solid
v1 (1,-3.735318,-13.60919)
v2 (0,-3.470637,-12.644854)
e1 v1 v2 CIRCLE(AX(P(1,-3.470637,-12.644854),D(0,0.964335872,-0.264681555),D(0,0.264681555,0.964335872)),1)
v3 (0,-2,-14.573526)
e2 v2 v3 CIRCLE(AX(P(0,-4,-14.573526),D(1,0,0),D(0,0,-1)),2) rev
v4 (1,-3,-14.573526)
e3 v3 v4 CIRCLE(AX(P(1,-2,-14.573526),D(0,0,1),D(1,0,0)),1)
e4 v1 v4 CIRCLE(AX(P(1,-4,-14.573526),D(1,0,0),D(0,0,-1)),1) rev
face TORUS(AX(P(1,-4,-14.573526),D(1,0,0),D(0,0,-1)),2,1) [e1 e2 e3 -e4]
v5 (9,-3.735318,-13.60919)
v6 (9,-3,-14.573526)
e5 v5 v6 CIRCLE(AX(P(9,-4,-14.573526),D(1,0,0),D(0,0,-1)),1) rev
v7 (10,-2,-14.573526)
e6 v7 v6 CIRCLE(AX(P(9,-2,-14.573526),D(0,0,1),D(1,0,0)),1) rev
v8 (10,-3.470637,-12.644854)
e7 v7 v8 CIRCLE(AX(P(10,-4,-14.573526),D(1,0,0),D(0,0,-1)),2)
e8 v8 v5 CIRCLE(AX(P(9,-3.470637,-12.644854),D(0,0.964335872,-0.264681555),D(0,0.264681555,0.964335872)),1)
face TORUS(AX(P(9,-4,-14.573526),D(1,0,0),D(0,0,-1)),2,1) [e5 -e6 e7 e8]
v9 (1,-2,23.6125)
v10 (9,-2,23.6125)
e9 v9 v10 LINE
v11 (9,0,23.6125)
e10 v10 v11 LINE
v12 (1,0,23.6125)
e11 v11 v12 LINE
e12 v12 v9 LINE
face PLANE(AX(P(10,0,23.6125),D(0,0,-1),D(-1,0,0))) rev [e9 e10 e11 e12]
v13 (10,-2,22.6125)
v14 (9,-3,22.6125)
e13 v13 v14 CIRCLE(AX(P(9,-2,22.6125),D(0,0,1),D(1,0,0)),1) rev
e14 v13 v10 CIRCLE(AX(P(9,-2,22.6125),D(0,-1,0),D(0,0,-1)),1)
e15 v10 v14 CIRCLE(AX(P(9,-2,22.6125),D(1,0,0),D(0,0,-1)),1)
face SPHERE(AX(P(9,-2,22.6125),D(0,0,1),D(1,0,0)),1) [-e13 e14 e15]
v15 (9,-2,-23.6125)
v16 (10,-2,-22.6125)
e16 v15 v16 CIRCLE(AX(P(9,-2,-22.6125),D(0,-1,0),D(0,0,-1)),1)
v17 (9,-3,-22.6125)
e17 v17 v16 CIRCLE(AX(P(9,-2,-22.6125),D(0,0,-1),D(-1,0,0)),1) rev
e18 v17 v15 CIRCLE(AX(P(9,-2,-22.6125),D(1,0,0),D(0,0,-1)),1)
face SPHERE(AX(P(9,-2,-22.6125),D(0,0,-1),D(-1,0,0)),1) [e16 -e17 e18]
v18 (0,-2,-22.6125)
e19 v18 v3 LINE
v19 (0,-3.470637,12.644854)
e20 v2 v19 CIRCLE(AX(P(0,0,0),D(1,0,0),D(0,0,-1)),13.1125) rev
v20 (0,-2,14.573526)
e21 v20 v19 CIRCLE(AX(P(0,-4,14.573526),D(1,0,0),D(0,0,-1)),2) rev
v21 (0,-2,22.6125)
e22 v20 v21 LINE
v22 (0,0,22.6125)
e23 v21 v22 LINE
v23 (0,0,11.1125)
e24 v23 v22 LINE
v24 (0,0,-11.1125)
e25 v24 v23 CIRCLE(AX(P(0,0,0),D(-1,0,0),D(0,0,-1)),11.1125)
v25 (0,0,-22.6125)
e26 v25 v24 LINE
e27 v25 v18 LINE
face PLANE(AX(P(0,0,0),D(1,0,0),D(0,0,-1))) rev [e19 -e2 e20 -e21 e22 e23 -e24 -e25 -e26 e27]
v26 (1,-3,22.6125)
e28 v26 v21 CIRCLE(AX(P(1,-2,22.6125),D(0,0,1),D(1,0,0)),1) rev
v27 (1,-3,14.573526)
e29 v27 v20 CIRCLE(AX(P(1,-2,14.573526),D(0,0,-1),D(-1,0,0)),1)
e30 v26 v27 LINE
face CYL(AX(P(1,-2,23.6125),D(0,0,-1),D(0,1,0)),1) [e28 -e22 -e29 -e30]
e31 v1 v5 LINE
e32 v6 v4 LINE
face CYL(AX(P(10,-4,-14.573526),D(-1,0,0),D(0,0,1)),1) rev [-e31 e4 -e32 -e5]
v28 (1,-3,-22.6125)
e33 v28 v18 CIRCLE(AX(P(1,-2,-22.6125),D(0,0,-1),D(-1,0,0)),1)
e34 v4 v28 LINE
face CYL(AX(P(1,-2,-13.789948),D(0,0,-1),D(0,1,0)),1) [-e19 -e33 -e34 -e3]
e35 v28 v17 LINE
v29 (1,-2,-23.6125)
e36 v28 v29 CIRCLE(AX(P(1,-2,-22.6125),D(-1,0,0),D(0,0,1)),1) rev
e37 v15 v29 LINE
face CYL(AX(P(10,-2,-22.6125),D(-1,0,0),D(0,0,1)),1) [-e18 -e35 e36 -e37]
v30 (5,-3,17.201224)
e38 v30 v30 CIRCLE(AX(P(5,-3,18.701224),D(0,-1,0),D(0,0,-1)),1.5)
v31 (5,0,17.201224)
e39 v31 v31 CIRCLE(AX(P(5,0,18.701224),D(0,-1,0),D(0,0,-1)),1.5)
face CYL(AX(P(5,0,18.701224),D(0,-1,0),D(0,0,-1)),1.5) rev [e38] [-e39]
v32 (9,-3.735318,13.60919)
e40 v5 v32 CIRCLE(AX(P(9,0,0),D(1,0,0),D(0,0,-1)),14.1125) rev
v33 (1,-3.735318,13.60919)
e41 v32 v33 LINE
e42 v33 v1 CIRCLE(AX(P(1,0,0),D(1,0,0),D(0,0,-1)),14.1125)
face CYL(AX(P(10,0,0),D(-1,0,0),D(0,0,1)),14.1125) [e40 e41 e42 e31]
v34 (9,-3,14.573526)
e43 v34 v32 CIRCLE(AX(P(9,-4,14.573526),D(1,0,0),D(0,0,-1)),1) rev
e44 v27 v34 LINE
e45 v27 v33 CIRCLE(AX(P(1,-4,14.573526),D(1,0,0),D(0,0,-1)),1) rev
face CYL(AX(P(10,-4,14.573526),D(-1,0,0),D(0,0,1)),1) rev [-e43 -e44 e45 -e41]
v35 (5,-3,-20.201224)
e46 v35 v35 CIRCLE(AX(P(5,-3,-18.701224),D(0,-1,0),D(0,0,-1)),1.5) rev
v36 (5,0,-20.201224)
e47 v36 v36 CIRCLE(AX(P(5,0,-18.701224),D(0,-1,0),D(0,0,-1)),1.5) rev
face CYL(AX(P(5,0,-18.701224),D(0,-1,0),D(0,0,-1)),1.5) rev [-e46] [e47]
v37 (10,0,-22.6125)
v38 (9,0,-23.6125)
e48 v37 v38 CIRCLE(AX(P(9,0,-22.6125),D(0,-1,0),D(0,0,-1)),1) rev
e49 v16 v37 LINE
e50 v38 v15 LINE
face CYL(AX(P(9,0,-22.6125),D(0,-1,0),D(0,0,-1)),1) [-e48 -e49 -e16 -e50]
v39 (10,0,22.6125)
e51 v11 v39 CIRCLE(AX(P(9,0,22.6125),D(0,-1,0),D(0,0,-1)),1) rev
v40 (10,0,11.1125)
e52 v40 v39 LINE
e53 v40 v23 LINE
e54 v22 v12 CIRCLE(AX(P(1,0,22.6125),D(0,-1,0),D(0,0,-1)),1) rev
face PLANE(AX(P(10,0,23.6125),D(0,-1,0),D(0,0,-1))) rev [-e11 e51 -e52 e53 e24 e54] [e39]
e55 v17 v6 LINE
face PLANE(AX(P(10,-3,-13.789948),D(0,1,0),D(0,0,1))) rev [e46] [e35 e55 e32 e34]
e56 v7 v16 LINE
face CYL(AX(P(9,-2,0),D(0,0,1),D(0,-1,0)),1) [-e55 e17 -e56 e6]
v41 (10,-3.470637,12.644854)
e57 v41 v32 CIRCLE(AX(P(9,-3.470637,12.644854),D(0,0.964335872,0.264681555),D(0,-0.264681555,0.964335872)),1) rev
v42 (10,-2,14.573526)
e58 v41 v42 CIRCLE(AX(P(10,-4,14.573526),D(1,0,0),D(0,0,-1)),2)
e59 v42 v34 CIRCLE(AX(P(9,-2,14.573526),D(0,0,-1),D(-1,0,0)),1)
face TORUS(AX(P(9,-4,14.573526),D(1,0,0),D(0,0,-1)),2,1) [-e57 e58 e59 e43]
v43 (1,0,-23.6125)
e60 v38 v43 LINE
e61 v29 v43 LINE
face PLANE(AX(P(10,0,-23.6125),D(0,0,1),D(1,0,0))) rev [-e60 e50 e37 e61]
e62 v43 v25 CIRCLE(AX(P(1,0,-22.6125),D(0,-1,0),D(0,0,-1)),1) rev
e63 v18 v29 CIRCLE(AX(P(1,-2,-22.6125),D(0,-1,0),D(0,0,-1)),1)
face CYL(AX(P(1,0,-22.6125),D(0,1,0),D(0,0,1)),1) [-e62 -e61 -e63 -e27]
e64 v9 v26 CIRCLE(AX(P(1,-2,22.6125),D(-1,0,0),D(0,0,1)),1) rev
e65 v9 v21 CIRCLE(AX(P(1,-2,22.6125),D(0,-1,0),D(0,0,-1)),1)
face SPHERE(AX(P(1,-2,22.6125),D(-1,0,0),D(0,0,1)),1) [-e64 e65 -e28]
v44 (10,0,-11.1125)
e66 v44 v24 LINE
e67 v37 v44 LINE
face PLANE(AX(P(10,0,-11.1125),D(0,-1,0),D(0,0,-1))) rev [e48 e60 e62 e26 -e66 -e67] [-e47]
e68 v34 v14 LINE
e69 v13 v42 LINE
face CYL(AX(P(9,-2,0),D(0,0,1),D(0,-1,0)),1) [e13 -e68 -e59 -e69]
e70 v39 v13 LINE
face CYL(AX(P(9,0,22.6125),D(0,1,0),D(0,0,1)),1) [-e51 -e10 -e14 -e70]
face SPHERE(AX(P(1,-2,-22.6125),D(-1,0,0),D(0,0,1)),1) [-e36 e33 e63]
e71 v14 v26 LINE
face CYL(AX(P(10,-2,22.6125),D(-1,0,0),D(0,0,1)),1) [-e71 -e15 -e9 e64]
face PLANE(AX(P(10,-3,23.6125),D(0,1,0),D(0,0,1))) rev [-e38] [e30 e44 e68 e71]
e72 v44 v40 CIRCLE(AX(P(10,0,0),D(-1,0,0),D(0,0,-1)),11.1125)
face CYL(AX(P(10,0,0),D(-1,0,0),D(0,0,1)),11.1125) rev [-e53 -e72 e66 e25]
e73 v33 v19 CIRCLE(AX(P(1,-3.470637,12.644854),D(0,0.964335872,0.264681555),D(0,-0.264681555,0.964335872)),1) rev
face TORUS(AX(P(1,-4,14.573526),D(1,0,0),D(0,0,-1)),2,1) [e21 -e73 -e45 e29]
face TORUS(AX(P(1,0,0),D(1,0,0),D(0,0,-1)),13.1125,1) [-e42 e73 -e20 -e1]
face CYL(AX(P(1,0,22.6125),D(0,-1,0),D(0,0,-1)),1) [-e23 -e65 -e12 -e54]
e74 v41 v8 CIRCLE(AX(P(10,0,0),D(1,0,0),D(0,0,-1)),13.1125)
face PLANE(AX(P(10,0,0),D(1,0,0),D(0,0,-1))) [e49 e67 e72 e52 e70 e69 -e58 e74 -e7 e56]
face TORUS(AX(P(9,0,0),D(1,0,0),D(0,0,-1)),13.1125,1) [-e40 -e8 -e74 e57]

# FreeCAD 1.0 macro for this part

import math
import FreeCAD as App
import Part
import Sketcher
Q = App.Units.Quantity


def edges_at(feature, points):
    """Names of the edges that pass closest to the given points."""
    edges = feature.Shape.Edges
    near = lambda p: min(range(len(edges)), key=lambda i: edges[i].distToShape(Part.Vertex(*p))[0])
    return sorted({f"Edge{near(p) + 1}" for p in points})

doc = App.newDocument("Part")
body = doc.addObject("PartDesign::Body", "Body")

sketch1 = body.newObject("Sketcher::SketchObject", "Sketch")
sketch1.AttachmentSupport = (doc.getObject("YZ_Plane"), [""])
sketch1.MapMode = "FlatFace"
sketch1.addGeometry([
    Part.LineSegment(App.Vector(0, 11.1, 0), App.Vector(0, 23.6, 0)),
    Part.LineSegment(App.Vector(0, 23.6, 0), App.Vector(-3, 23.6, 0)),
    Part.LineSegment(App.Vector(-3, 23.6, 0), App.Vector(-3, 13.8, 0)),
    Part.ArcOfCircle(Part.Circle(App.Vector(0, 0, 0), App.Vector(0, 0, 1), 14.1), math.radians(102), math.radians(258)),
    Part.LineSegment(App.Vector(-3, -13.8, 0), App.Vector(-3, -23.6, 0)),
    Part.LineSegment(App.Vector(-3, -23.6, 0), App.Vector(0, -23.6, 0)),
    Part.LineSegment(App.Vector(0, -23.6, 0), App.Vector(0, -11.1, 0)),
    Part.ArcOfCircle(Part.Circle(App.Vector(0, 0, 0), App.Vector(0, 0, 1), 11.1), math.radians(90), math.radians(270)),
], False)
sketch1.addConstraint([
    Sketcher.Constraint("Coincident", 0, 2, 1, 1),
    Sketcher.Constraint("Coincident", 1, 2, 2, 1),
    Sketcher.Constraint("Coincident", 2, 2, 3, 1),
    Sketcher.Constraint("Coincident", 3, 2, 4, 1),
    Sketcher.Constraint("Coincident", 4, 2, 5, 1),
    Sketcher.Constraint("Coincident", 5, 2, 6, 1),
    Sketcher.Constraint("Coincident", 6, 2, 7, 2),
    Sketcher.Constraint("Coincident", 7, 1, 0, 1),
    Sketcher.Constraint("Vertical", 0),
    Sketcher.Constraint("Horizontal", 1),
    Sketcher.Constraint("Vertical", 2),
    Sketcher.Constraint("Vertical", 4),
    Sketcher.Constraint("Horizontal", 5),
    Sketcher.Constraint("Vertical", 6),
    Sketcher.Constraint("Coincident", 3, 3, -1, 1),
    Sketcher.Constraint("Coincident", 7, 3, -1, 1),
    Sketcher.Constraint("Symmetric", 0, 2, 5, 2, -1, 1),
    Sketcher.Constraint("PointOnObject", 0, 2, -2),
    Sketcher.Constraint("Vertical", 2, 2, 3, 2),
    Sketcher.Constraint("DistanceX", 1, 2, 1, 1, Q("3 mm")),
    Sketcher.Constraint("DistanceY", 0, 1, 0, 2, Q("12.5 mm")),
    Sketcher.Constraint("Radius", 3, Q("14.1125 mm")),
    Sketcher.Constraint("Radius", 7, Q("11.1125 mm")),
])
pad1 = body.newObject("PartDesign::Pad", "Pad")
pad1.Profile = sketch1
pad1.Length = 10

sketch2 = body.newObject("Sketcher::SketchObject", "Sketch001")
sketch2.AttachmentSupport = (doc.getObject("XZ_Plane"), [""])
sketch2.MapMode = "FlatFace"
sketch2.AttachmentOffset = App.Placement(App.Vector(0, 0, 3), App.Rotation())
sketch2.addGeometry([
    Part.Circle(App.Vector(5, 18.7, 0), App.Vector(0, 0, 1), 1.5),
    Part.Circle(App.Vector(5, -18.7, 0), App.Vector(0, 0, 1), 1.5),
], False)
sketch2.addConstraint([
    Sketcher.Constraint("Equal", 0, 1),
    Sketcher.Constraint("Symmetric", 0, 3, 1, 3, -1),
    Sketcher.Constraint("Diameter", 0, Q("3 mm")),
    Sketcher.Constraint("DistanceX", -1, 1, 0, 3, Q("5 mm")),
    Sketcher.Constraint("DistanceY", -1, 1, 0, 3, Q("18.701224 mm")),
])
pocket1 = body.newObject("PartDesign::Pocket", "Pocket")
pocket1.Profile = sketch2
pocket1.Type = "ThroughAll"
doc.recompute()

fillet = body.newObject("PartDesign::Fillet", "Fillet")
fillet.Base = (pocket1, edges_at(pocket1, [
    (0, -1.5, -23.613),
    (0, -3, -18.701),
    (0, -14.113, 0),
    (10, -1.5, -23.613),
    (5, -3, 13.79),
    (5, -3, 23.613),
    (5, -3, -23.613),
    (5, -3, -13.79),
    (10, -1.5, 23.613),
    (10, -3, 18.701),
    (10, -14.113, 0),
    (0, -3, 18.701),
    (10, -3, -18.701),
    (0, -1.5, 23.613),
]))
fillet.Radius = 1

doc.recompute()
